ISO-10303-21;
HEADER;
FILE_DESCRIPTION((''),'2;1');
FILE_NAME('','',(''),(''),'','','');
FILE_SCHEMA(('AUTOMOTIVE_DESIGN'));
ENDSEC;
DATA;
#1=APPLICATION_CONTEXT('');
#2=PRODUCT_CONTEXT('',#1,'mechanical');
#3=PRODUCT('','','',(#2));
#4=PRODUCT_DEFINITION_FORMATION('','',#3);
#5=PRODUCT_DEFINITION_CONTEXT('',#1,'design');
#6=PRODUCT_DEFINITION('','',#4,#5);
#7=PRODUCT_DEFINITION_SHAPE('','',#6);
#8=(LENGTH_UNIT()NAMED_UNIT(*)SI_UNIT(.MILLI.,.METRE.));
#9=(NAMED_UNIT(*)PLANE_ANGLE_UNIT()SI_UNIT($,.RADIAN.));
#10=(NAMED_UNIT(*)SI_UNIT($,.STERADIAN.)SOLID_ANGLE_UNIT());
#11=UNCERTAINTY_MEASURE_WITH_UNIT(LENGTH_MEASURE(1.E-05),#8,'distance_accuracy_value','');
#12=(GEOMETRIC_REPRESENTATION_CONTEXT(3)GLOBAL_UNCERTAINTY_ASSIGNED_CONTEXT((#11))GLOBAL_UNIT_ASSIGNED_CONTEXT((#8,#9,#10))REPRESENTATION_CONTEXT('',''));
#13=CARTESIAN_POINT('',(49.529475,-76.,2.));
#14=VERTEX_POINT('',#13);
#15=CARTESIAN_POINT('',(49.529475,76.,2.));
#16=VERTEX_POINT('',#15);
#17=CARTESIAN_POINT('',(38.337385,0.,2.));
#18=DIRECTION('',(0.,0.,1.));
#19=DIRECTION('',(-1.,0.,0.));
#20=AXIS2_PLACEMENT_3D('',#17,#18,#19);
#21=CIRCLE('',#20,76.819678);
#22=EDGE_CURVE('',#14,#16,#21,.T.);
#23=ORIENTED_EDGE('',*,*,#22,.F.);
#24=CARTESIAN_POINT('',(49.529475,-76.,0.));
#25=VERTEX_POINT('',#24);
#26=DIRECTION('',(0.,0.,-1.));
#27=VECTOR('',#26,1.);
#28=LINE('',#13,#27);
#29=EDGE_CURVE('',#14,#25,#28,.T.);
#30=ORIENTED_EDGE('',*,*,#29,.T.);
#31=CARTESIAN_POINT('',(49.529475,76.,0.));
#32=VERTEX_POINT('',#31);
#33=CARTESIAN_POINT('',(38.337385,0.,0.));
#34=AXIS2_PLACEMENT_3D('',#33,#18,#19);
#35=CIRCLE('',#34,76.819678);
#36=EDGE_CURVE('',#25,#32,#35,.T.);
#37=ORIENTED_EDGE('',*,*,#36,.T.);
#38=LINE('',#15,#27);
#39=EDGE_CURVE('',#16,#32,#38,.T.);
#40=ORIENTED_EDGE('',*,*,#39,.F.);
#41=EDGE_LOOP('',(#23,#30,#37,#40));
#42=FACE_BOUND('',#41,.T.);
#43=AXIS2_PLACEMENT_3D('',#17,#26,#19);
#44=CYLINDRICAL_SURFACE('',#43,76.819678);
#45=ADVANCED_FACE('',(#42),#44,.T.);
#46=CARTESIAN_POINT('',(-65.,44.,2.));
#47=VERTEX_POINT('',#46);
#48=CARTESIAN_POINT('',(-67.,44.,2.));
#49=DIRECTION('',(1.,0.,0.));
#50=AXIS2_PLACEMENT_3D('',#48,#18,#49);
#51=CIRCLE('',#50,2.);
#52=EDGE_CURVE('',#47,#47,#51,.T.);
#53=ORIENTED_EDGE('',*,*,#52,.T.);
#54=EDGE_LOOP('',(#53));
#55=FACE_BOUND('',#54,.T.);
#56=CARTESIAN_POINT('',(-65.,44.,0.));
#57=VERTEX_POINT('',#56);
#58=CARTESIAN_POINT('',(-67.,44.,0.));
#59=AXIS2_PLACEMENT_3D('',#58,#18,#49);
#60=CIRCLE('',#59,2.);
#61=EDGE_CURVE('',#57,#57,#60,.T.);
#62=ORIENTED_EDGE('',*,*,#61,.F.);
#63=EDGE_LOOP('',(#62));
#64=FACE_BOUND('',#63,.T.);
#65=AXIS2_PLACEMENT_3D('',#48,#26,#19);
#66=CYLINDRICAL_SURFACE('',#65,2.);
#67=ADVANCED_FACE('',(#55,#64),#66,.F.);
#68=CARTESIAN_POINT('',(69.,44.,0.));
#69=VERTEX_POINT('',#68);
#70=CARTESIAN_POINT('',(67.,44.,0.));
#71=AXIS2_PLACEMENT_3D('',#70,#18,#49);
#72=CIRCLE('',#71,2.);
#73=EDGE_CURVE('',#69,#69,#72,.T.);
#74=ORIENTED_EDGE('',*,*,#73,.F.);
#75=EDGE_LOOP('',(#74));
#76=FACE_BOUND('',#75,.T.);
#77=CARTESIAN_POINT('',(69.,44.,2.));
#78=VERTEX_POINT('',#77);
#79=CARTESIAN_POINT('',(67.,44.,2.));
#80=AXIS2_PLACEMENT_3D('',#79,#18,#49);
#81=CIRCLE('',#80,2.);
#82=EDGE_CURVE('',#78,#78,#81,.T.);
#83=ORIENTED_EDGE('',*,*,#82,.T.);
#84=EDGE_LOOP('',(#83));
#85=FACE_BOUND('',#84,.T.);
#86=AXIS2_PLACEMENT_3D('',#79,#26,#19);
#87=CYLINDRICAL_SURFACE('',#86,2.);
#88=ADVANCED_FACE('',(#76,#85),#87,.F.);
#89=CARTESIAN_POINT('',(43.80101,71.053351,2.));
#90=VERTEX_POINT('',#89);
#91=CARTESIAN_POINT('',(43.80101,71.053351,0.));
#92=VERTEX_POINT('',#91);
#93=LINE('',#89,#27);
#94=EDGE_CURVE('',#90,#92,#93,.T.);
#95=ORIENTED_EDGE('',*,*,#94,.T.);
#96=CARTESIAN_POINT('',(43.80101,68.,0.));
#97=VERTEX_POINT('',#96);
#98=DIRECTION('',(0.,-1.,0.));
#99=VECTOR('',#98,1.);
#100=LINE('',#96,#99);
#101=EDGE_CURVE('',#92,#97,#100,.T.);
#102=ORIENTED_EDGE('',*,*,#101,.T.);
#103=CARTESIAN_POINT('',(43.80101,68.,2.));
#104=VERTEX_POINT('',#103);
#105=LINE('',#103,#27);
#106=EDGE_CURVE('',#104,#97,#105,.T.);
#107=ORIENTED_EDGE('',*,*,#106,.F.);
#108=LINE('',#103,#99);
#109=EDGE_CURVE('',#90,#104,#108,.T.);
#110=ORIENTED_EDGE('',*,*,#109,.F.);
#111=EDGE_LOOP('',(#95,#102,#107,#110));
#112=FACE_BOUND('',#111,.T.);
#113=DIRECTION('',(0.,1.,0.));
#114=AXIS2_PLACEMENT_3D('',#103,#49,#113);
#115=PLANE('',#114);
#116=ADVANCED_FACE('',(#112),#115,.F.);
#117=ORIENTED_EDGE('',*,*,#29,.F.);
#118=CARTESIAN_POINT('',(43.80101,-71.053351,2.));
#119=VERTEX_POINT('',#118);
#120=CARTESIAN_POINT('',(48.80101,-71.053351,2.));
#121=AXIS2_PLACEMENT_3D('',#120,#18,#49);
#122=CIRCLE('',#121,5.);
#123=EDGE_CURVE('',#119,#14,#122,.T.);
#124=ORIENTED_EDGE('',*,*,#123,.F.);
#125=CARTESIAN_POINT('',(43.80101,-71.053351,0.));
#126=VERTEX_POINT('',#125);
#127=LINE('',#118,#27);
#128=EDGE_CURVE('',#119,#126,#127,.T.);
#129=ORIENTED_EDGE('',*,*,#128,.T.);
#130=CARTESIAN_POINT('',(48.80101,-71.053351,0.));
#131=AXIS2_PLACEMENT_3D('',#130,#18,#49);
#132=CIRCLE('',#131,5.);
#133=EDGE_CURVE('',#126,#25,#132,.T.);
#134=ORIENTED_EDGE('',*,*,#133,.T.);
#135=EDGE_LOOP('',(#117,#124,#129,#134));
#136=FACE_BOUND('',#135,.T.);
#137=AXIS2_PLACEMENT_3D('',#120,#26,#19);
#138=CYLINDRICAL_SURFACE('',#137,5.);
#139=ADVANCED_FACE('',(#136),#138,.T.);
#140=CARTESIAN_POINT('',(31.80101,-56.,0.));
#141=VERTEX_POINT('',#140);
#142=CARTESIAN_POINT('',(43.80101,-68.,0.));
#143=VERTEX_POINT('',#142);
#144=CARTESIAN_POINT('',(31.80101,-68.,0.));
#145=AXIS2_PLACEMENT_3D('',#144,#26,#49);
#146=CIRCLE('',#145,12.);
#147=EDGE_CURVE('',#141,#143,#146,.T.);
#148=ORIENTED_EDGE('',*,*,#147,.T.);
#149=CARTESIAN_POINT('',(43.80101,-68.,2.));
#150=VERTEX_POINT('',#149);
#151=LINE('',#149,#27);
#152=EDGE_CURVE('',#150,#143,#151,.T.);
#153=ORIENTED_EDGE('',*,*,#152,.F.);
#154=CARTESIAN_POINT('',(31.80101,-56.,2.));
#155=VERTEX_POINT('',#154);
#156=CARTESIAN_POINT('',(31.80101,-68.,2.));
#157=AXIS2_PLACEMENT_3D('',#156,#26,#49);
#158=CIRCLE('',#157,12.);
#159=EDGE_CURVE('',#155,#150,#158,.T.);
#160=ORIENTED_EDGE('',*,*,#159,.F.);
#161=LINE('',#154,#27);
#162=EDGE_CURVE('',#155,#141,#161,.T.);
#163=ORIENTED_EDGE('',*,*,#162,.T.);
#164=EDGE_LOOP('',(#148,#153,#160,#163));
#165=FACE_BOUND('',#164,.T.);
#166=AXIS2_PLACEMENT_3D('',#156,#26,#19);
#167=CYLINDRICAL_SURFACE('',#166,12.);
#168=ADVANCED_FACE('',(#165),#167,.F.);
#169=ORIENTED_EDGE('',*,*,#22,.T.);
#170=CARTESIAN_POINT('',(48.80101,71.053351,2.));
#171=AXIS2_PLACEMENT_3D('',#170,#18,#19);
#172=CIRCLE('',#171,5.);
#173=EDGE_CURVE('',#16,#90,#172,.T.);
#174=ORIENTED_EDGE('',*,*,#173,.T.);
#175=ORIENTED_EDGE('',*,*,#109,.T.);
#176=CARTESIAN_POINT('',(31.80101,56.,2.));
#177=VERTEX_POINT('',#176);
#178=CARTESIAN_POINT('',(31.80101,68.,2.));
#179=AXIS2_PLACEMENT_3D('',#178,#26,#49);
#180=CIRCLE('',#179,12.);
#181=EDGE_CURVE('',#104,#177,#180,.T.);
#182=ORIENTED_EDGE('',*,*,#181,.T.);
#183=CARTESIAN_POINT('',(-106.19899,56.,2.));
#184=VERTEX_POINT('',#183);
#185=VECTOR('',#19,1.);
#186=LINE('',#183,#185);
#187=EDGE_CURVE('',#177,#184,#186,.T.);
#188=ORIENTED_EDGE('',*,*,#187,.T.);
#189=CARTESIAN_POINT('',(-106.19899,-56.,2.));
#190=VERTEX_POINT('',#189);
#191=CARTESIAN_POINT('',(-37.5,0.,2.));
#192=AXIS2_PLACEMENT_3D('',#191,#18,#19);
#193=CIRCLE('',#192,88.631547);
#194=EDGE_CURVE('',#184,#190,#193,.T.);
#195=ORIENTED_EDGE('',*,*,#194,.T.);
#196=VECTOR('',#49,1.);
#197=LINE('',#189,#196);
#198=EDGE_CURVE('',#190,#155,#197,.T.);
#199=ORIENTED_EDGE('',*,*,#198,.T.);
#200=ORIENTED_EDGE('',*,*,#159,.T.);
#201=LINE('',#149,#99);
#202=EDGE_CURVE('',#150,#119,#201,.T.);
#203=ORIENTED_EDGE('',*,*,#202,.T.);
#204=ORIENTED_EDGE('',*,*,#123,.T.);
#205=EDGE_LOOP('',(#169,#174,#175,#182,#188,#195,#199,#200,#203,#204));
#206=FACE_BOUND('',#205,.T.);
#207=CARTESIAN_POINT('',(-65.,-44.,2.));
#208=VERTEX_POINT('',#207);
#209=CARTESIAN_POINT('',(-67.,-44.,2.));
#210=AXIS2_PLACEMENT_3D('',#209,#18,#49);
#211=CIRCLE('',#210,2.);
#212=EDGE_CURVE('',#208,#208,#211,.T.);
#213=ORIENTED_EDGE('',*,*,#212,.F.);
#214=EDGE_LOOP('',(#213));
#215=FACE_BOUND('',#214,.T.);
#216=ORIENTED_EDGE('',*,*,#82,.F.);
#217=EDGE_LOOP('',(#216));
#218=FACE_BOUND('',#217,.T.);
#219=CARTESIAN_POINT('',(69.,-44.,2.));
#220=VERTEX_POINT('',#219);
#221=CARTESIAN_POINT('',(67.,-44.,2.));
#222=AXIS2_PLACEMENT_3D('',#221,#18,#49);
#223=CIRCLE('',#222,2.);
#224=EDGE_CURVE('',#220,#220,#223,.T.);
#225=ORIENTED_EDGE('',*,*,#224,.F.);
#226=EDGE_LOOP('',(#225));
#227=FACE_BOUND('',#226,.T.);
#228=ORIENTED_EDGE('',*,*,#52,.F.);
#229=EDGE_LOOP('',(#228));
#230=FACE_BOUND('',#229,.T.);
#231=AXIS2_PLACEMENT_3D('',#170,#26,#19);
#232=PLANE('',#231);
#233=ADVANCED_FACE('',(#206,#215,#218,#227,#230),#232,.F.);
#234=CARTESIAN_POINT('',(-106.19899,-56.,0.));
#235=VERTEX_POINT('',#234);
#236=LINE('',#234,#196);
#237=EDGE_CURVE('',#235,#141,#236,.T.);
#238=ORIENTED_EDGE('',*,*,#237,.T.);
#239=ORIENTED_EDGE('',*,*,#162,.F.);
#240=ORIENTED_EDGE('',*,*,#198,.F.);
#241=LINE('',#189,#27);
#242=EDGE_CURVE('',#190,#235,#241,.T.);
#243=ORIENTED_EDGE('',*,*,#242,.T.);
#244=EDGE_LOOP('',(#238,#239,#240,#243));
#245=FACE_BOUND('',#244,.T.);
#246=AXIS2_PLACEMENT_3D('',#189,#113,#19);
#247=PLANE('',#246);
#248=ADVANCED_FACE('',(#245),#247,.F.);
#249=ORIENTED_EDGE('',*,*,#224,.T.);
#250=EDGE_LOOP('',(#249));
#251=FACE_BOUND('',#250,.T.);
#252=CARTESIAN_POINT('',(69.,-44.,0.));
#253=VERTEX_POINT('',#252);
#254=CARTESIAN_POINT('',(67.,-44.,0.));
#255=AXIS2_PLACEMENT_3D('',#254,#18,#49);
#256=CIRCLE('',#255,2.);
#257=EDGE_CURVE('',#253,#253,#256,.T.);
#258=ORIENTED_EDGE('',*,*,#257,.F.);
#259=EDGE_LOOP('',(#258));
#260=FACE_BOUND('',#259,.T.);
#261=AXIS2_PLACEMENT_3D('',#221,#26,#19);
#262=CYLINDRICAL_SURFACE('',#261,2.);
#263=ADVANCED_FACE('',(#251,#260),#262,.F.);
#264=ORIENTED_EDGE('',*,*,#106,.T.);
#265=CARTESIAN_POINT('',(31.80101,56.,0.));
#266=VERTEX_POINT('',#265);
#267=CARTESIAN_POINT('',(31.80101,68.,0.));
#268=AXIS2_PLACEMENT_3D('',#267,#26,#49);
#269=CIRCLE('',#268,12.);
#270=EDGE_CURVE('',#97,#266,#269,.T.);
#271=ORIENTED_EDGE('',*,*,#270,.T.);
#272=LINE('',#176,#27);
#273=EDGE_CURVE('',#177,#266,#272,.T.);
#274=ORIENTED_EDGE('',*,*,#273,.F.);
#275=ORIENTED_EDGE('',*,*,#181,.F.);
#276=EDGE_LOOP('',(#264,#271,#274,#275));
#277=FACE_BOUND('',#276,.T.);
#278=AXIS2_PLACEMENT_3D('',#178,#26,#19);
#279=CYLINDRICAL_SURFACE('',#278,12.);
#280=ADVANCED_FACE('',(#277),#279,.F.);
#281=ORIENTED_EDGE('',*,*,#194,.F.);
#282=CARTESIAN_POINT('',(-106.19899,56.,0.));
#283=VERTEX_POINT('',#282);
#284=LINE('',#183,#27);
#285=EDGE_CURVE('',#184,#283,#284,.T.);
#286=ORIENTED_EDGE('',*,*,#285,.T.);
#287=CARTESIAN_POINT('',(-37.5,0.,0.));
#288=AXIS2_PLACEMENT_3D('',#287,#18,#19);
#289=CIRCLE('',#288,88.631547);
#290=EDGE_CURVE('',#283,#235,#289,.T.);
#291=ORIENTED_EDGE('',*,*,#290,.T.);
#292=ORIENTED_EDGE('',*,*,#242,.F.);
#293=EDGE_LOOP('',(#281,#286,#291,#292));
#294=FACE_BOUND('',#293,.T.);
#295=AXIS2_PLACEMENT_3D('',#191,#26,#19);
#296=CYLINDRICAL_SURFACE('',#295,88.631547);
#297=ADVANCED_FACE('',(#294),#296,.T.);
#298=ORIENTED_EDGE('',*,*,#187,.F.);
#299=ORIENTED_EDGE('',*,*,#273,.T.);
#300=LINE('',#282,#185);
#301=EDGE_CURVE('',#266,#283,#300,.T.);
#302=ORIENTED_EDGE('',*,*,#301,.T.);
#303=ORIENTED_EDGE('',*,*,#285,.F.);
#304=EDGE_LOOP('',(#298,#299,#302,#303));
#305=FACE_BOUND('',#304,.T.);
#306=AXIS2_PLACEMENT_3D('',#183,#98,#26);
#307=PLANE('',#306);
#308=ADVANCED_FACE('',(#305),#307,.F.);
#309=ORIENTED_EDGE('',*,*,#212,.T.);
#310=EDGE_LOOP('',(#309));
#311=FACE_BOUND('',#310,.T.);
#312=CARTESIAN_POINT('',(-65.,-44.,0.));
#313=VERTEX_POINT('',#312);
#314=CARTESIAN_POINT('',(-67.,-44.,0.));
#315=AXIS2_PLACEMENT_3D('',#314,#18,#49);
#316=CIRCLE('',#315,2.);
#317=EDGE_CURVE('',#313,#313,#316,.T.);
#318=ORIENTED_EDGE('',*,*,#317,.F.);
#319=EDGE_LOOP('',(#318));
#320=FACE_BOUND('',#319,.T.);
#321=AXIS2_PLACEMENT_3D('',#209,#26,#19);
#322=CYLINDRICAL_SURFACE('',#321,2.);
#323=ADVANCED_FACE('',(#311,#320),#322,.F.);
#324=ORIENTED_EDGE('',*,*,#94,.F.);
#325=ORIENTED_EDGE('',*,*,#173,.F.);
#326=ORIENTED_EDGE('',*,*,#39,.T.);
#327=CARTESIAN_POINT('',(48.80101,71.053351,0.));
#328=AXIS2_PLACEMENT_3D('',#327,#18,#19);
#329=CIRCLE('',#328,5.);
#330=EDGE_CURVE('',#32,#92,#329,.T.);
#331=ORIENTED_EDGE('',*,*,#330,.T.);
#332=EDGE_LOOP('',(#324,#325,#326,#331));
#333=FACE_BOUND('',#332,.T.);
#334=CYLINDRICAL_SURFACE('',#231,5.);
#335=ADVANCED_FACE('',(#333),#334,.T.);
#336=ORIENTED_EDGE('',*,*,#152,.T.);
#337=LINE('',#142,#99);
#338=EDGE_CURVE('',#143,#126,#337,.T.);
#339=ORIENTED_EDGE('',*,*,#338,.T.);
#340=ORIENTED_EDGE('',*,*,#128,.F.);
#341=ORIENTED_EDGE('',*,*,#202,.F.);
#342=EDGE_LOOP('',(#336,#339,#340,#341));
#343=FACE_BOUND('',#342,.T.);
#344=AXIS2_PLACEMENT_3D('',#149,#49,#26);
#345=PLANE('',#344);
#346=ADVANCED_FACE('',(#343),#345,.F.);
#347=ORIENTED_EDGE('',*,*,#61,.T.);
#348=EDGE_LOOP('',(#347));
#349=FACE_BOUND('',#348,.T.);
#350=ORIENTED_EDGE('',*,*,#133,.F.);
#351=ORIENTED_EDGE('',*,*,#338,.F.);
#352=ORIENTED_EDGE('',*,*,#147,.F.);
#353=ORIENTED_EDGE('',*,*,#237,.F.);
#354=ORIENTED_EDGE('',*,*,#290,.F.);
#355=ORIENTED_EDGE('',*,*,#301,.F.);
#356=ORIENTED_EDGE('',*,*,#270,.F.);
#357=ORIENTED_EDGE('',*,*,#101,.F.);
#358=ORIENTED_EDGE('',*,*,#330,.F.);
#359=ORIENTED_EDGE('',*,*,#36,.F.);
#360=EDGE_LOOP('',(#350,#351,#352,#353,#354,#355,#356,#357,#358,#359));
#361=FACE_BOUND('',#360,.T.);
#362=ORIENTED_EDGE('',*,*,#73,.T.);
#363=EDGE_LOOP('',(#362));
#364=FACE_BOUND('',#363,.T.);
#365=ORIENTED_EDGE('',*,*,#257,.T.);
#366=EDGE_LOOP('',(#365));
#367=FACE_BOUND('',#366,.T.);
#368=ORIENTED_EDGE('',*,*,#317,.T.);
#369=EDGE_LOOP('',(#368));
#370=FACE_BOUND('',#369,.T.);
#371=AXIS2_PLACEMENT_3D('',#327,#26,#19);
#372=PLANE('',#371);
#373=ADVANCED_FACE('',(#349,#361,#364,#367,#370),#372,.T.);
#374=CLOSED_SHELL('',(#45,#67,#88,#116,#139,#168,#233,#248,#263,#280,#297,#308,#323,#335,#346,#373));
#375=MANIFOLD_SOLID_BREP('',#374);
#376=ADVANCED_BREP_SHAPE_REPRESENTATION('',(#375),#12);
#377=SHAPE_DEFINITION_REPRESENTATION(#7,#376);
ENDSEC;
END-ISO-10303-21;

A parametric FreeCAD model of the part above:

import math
import FreeCAD as App
import Part
import Sketcher

V = App.Vector
Q = App.Units.Quantity

doc = App.newDocument("Part")
params = doc.addObject("Spreadsheet::Sheet", "Params")
for row, (alias, value) in enumerate([
    ("sketch1_diameter", "4 mm"),
    ("sketch1_radius", "12 mm"),
    ("sketch1_radius2", "5 mm"),
    ("sketch1_width", "138 mm"),
    ("pad1_length", "2 mm"),
], start=1):
    params.set(f"A{row}", alias)
    params.set(f"B{row}", "=" + value)
    params.setAlias(f"B{row}", alias)

body = doc.addObject("PartDesign::Body", "Body")

sketch1 = body.newObject("Sketcher::SketchObject", "Sketch")
sketch1.AttachmentSupport = (doc.getObject("XY_Plane"), [""])
sketch1.MapMode = "FlatFace"
sketch1.addGeometry([
    Part.LineSegment(V(43.80101, 71.053351, 0), V(43.80101, 68, 0)),
    Part.ArcOfCircle(Part.Circle(V(31.80101, 68, 0), V(0, 0, 1), 12), math.radians(-90), math.radians(0)),
    Part.LineSegment(V(31.80101, 56, 0), V(-106.19899, 56, 0)),
    Part.ArcOfCircle(Part.Circle(V(-37.5, 0, 0), V(0, 0, 1), 88.631547), math.radians(140.814793), math.radians(219.185207)),
    Part.LineSegment(V(-106.19899, -56, 0), V(31.80101, -56, 0)),
    Part.ArcOfCircle(Part.Circle(V(31.80101, -68, 0), V(0, 0, 1), 12), math.radians(0), math.radians(90)),
    Part.LineSegment(V(43.80101, -68, 0), V(43.80101, -71.053351, 0)),
    Part.ArcOfCircle(Part.Circle(V(48.80101, -71.053351, 0), V(0, 0, 1), 5), math.radians(180), math.radians(278.377412)),
    Part.ArcOfCircle(Part.Circle(V(38.337385, 0, 0), V(0, 0, 1), 76.819678), math.radians(-81.622588), math.radians(81.622588)),
    Part.ArcOfCircle(Part.Circle(V(48.80101, 71.053351, 0), V(0, 0, 1), 5), math.radians(81.622588), math.radians(180)),
    Part.Circle(V(67, -44, 0), V(0, 0, 1), 2),
    Part.Circle(V(-67, -44, 0), V(0, 0, 1), 2),
    Part.Circle(V(67, 44, 0), V(0, 0, 1), 2),
    Part.Circle(V(-67, 44, 0), V(0, 0, 1), 2),
], False)
sketch1.addConstraint([
    Sketcher.Constraint("Tangent", 0, 2, 1, 2),
    Sketcher.Constraint("Tangent", 1, 1, 2, 1),
    Sketcher.Constraint("Coincident", 2, 2, 3, 1),
    Sketcher.Constraint("Coincident", 3, 2, 4, 1),
    Sketcher.Constraint("Tangent", 4, 2, 5, 2),
    Sketcher.Constraint("Tangent", 5, 1, 6, 1),
    Sketcher.Constraint("Tangent", 6, 2, 7, 1),
    Sketcher.Constraint("Tangent", 7, 2, 8, 1),
    Sketcher.Constraint("Tangent", 8, 2, 9, 1),
    Sketcher.Constraint("Tangent", 9, 2, 0, 1),
    Sketcher.Constraint("Vertical", 0),
    Sketcher.Constraint("Horizontal", 2),
    Sketcher.Constraint("Horizontal", 4),
    Sketcher.Constraint("Vertical", 6),
    Sketcher.Constraint("Equal", 1, 5),
    Sketcher.Constraint("Equal", 7, 9),
    Sketcher.Constraint("Equal", 10, 11),
    Sketcher.Constraint("Equal", 11, 12),
    Sketcher.Constraint("Equal", 12, 13),
    Sketcher.Constraint("Symmetric", 11, 3, 12, 3, -1, 1),
    Sketcher.Constraint("Symmetric", 10, 3, 13, 3, -1, 1),
    Sketcher.Constraint("Symmetric", 10, 3, 11, 3, -2),
    Sketcher.Constraint("Symmetric", 1, 3, 5, 3, -1),
    Sketcher.Constraint("PointOnObject", 3, 3, -1),
    Sketcher.Constraint("PointOnObject", 8, 3, -1),
    Sketcher.Constraint("Diameter", 10, Q("4 mm")),
    Sketcher.Constraint("Radius", 1, Q("12 mm")),
    Sketcher.Constraint("Radius", 7, Q("5 mm")),
    Sketcher.Constraint("DistanceX", 2, 2, 2, 1, Q("138 mm")),
    Sketcher.Constraint("DistanceY", -1, 1, 1, 3, Q("68 mm")),
    Sketcher.Constraint("DistanceX", -1, 1, 10, 3, Q("67 mm")),
    Sketcher.Constraint("DistanceY", 10, 3, -1, 1, Q("44 mm")),
    Sketcher.Constraint("DistanceY", 7, 2, -1, 1, Q("76 mm")),
    Sketcher.Constraint("DistanceX", 3, 3, -1, 1, Q("37.5 mm")),
    Sketcher.Constraint("Radius", 3, Q("88.631547 mm")),
    Sketcher.Constraint("Radius", 8, Q("76.819678 mm")),
])
sketch1.setExpression("Constraints[25]", "Params.sketch1_diameter")
sketch1.setExpression("Constraints[26]", "Params.sketch1_radius")
sketch1.setExpression("Constraints[27]", "Params.sketch1_radius2")
sketch1.setExpression("Constraints[28]", "Params.sketch1_width")
pad1 = body.newObject("PartDesign::Pad", "Pad")
pad1.Profile = sketch1
pad1.setExpression("Length", "Params.pad1_length")

doc.recompute()
